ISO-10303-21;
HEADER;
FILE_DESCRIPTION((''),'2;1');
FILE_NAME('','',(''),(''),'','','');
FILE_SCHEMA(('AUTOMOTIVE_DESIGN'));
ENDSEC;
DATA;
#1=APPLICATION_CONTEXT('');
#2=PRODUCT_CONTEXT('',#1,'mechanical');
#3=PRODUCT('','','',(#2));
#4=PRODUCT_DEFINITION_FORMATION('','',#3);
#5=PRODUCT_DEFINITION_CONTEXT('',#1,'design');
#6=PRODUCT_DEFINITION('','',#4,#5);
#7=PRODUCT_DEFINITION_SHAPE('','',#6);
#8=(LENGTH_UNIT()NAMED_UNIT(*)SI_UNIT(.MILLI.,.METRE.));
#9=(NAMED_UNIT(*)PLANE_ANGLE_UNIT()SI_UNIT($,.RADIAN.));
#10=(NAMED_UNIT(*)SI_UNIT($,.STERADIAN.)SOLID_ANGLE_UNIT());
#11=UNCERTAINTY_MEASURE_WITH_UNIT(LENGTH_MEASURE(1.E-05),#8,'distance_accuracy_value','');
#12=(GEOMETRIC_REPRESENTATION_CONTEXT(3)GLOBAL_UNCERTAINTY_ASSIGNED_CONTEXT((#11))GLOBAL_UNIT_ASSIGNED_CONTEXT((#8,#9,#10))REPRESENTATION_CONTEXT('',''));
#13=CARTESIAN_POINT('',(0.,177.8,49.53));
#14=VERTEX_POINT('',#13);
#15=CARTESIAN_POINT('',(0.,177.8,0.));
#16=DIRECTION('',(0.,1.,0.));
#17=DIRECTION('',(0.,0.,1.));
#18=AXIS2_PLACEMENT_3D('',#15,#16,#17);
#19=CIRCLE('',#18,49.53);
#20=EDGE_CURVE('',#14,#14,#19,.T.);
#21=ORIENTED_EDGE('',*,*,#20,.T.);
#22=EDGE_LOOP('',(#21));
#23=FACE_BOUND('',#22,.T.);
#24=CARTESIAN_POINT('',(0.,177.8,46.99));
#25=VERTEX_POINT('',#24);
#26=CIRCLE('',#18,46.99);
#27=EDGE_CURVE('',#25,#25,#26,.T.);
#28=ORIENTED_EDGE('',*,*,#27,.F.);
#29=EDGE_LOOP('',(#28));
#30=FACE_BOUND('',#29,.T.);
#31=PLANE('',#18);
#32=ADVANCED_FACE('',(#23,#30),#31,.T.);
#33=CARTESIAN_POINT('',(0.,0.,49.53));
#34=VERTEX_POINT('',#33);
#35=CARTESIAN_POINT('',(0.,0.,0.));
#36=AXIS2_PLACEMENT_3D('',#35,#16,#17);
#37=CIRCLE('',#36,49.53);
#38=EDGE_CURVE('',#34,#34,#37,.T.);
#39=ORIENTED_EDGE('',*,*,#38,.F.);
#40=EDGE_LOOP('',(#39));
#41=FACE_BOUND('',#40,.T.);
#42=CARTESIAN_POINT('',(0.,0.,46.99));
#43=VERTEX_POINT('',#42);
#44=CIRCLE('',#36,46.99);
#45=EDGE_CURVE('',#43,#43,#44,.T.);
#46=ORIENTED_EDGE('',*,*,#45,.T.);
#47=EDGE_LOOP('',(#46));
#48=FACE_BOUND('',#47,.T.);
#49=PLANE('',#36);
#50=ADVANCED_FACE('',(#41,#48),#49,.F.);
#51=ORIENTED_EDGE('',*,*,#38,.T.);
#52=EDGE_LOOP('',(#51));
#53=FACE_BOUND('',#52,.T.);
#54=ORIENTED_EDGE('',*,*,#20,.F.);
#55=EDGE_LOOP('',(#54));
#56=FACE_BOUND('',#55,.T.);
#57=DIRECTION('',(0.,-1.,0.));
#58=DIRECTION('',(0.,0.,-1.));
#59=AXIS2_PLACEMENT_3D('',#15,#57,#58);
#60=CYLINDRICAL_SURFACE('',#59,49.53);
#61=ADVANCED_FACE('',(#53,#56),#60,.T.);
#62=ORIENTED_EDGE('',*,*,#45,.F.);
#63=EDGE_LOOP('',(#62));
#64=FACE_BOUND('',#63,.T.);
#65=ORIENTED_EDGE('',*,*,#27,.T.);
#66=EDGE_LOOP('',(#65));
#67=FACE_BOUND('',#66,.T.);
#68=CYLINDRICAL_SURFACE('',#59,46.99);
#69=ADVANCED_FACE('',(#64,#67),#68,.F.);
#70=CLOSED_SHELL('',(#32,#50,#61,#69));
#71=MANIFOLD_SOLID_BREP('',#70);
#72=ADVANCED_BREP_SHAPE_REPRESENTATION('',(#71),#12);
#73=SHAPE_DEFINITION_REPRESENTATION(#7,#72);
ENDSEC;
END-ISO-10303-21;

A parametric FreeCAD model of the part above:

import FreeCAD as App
import Part
import Sketcher

V = App.Vector
Q = App.Units.Quantity

doc = App.newDocument("Part")
body = doc.addObject("PartDesign::Body", "Body")

sketch1 = body.newObject("Sketcher::SketchObject", "Sketch")
sketch1.AttachmentSupport = (doc.getObject("XZ_Plane"), [""])
sketch1.MapMode = "FlatFace"
sketch1.addGeometry([
    Part.Circle(V(0, 0, 0), V(0, 0, 1), 49.53),
    Part.Circle(V(0, 0, 0), V(0, 0, 1), 46.99),
], False)
sketch1.addConstraint([
    Sketcher.Constraint("Coincident", 0, 3, -1, 1),
    Sketcher.Constraint("Coincident", 1, 3, -1, 1),
    Sketcher.Constraint("Diameter", 0, Q("3.9 in")),
    Sketcher.Constraint("Diameter", 1, Q("3.7 in")),
])
pad1 = body.newObject("PartDesign::Pad", "Pad")
pad1.Profile = sketch1
pad1.Length = Q("7 in")
pad1.Reversed = True

doc.recompute()
